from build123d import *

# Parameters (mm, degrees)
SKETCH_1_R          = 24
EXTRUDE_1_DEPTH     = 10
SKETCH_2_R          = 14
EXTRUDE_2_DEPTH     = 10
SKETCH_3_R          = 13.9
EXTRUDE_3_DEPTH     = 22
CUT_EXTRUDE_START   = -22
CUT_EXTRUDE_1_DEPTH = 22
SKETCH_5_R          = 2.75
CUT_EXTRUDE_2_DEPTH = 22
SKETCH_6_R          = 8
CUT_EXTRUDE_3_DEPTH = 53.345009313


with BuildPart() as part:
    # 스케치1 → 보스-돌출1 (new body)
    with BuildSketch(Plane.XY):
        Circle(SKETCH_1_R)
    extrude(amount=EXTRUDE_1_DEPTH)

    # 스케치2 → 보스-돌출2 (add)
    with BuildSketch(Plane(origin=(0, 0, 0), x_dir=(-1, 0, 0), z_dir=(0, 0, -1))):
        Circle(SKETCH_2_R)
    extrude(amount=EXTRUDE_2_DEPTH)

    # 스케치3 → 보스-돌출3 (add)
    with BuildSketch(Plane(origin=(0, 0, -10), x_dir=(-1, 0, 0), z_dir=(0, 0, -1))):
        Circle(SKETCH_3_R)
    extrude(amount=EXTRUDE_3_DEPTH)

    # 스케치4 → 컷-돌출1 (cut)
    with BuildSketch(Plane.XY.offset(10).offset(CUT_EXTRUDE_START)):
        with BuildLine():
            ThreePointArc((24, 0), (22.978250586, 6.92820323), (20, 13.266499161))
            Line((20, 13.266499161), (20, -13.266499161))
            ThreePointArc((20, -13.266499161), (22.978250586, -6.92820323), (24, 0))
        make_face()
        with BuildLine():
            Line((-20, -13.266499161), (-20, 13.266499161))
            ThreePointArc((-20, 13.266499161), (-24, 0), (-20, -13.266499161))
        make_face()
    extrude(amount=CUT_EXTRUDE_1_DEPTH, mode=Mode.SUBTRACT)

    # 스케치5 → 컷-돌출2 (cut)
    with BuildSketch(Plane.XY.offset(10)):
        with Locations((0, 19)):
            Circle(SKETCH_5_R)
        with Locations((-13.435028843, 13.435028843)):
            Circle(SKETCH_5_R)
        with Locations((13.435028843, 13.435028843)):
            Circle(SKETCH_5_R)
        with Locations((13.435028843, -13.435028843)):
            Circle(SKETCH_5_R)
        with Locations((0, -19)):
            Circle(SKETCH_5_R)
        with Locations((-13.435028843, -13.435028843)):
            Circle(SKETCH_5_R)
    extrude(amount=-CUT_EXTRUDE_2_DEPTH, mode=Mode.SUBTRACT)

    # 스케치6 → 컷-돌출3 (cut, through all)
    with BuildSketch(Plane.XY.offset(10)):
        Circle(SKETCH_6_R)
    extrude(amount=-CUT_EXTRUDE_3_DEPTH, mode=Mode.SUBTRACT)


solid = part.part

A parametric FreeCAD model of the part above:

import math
import FreeCAD as App
import Part
import Sketcher
from FreeCAD import Vector

doc = App.newDocument("Part")
params = doc.addObject("Spreadsheet::Sheet", "Params")
for row, (alias, value) in enumerate([
    ("sketch1_diameter", "48 mm"),
    ("pad1_length", "10 mm"),
    ("sketch2_diameter", "28 mm"),
    ("pad2_length", "10 mm"),
    ("sketch3_diameter", "27.8 mm"),
    ("pad3_length", "22 mm"),
    ("sketch4_radius", "24 mm"),
    ("pocket1_length", "22 mm"),
    ("sketch5_diameter", "5.5 mm"),
    ("pocket2_length", "22 mm"),
    ("sketch6_diameter", "16 mm"),
], start=1):
    params.set(f"A{row}", alias)
    params.set(f"B{row}", "=" + value)
    params.setAlias(f"B{row}", alias)

body = doc.addObject("PartDesign::Body", "Body")

# Sketch on XY plane
sketch1 = body.newObject("Sketcher::SketchObject", "Sketch")
sketch1.AttachmentSupport = (doc.getObject("XY_Plane"), [""])
sketch1.MapMode = "FlatFace"
sketch1.addGeometry(Part.Circle(Vector(0, 0, 0), Vector(0, 0, 1), 24), False)
sketch1.addConstraint(Sketcher.Constraint("Coincident", 0, 3, -1, 1))
sketch1.addConstraint(Sketcher.Constraint("Diameter", 0, 48.0))
sketch1.setExpression("Constraints[1]", "Params.sketch1_diameter")
pad1 = body.newObject("PartDesign::Pad", "Pad")
pad1.Profile = sketch1
pad1.setExpression("Length", "Params.pad1_length")

# Sketch on XY plane
sketch2 = body.newObject("Sketcher::SketchObject", "Sketch001")
sketch2.AttachmentSupport = (doc.getObject("XY_Plane"), [""])
sketch2.MapMode = "FlatFace"
sketch2.addGeometry(Part.Circle(Vector(0, 0, 0), Vector(0, 0, 1), 14), False)
sketch2.addConstraint(Sketcher.Constraint("Coincident", 0, 3, -1, 1))
sketch2.addConstraint(Sketcher.Constraint("Diameter", 0, 28.0))
sketch2.setExpression("Constraints[1]", "Params.sketch2_diameter")
pad2 = body.newObject("PartDesign::Pad", "Pad001")
pad2.Profile = sketch2
pad2.setExpression("Length", "Params.pad2_length")
pad2.Reversed = True

# Sketch on XY plane
sketch3 = body.newObject("Sketcher::SketchObject", "Sketch002")
sketch3.AttachmentSupport = (doc.getObject("XY_Plane"), [""])
sketch3.MapMode = "FlatFace"
sketch3.AttachmentOffset = App.Placement(Vector(0, 0, -10), App.Rotation())
sketch3.addGeometry(Part.Circle(Vector(0, 0, 0), Vector(0, 0, 1), 14), False)
sketch3.addConstraint(Sketcher.Constraint("Coincident", 0, 3, -1, 1))
sketch3.addConstraint(Sketcher.Constraint("Diameter", 0, 27.8))
sketch3.setExpression("Constraints[1]", "Params.sketch3_diameter")
pad3 = body.newObject("PartDesign::Pad", "Pad002")
pad3.Profile = sketch3
pad3.setExpression("Length", "Params.pad3_length")
pad3.Reversed = True

# Sketch on XY plane
sketch4 = body.newObject("Sketcher::SketchObject", "Sketch003")
sketch4.AttachmentSupport = (doc.getObject("XY_Plane"), [""])
sketch4.MapMode = "FlatFace"
sketch4.AttachmentOffset = App.Placement(Vector(0, 0, -12), App.Rotation())
sketch4.addGeometry(Part.ArcOfCircle(Part.Circle(Vector(0, 0, 0), Vector(0, 0, 1), 24), math.radians(0), math.radians(34)), False)
sketch4.addGeometry(Part.LineSegment(Vector(20, 13, 0), Vector(20, -13, 0)), False)
sketch4.addGeometry(Part.ArcOfCircle(Part.Circle(Vector(0, 0, 0), Vector(0, 0, 1), 24), math.radians(-34), math.radians(0)), False)
sketch4.addGeometry(Part.LineSegment(Vector(-20, -13, 0), Vector(-20, 13, 0)), False)
sketch4.addGeometry(Part.ArcOfCircle(Part.Circle(Vector(0, 0, 0), Vector(0, 0, 1), 24), math.radians(146), math.radians(214)), False)
sketch4.addConstraint(Sketcher.Constraint("Coincident", 0, 2, 1, 1))
sketch4.addConstraint(Sketcher.Constraint("Coincident", 1, 2, 2, 1))
sketch4.addConstraint(Sketcher.Constraint("Tangent", 2, 2, 0, 1))
sketch4.addConstraint(Sketcher.Constraint("Coincident", 3, 1, 4, 2))
sketch4.addConstraint(Sketcher.Constraint("Coincident", 4, 1, 3, 2))
sketch4.addConstraint(Sketcher.Constraint("Vertical", 1))
sketch4.addConstraint(Sketcher.Constraint("Vertical", 3))
sketch4.addConstraint(Sketcher.Constraint("Coincident", 0, 3, -1, 1))
sketch4.addConstraint(Sketcher.Constraint("Coincident", 4, 3, -1, 1))
sketch4.addConstraint(Sketcher.Constraint("Equal", 0, 2))
sketch4.addConstraint(Sketcher.Constraint("Equal", 2, 4))
sketch4.addConstraint(Sketcher.Constraint("PointOnObject", 2, 2, -1))
sketch4.addConstraint(Sketcher.Constraint("Horizontal", 1, 2, 3, 1))
sketch4.addConstraint(Sketcher.Constraint("Radius", 0, 24.0))
sketch4.addConstraint(Sketcher.Constraint("DistanceX", -1, 1, 0, 2, 20.0))
sketch4.setExpression("Constraints[13]", "Params.sketch4_radius")
pocket1 = body.newObject("PartDesign::Pocket", "Pocket")
pocket1.Profile = sketch4
pocket1.setExpression("Length", "Params.pocket1_length")
pocket1.Reversed = True

# Sketch on XY plane
sketch5 = body.newObject("Sketcher::SketchObject", "Sketch004")
sketch5.AttachmentSupport = (doc.getObject("XY_Plane"), [""])
sketch5.MapMode = "FlatFace"
sketch5.AttachmentOffset = App.Placement(Vector(0, 0, 10), App.Rotation())
sketch5.addGeometry(Part.Circle(Vector(0, 19, 0), Vector(0, 0, 1), 2.8), False)
sketch5.addGeometry(Part.Circle(Vector(-13.4, 13.4, 0), Vector(0, 0, 1), 2.8), False)
sketch5.addGeometry(Part.Circle(Vector(13.4, 13.4, 0), Vector(0, 0, 1), 2.8), False)
sketch5.addGeometry(Part.Circle(Vector(13.4, -13.4, 0), Vector(0, 0, 1), 2.8), False)
sketch5.addGeometry(Part.Circle(Vector(0, -19, 0), Vector(0, 0, 1), 2.8), False)
sketch5.addGeometry(Part.Circle(Vector(-13.4, -13.4, 0), Vector(0, 0, 1), 2.8), False)
sketch5.addConstraint(Sketcher.Constraint("Equal", 0, 1))
sketch5.addConstraint(Sketcher.Constraint("Equal", 1, 2))
sketch5.addConstraint(Sketcher.Constraint("Equal", 2, 3))
sketch5.addConstraint(Sketcher.Constraint("Equal", 3, 4))
sketch5.addConstraint(Sketcher.Constraint("Equal", 4, 5))
sketch5.addConstraint(Sketcher.Constraint("Symmetric", 1, 3, 3, 3, -1, 1))
sketch5.addConstraint(Sketcher.Constraint("Symmetric", 0, 3, 4, 3, -1, 1))
sketch5.addConstraint(Sketcher.Constraint("Symmetric", 2, 3, 5, 3, -1, 1))
sketch5.addConstraint(Sketcher.Constraint("Symmetric", 1, 3, 2, 3, -2))
sketch5.addConstraint(Sketcher.Constraint("PointOnObject", 0, 3, -2))
sketch5.addConstraint(Sketcher.Constraint("Diameter", 0, 5.5))
sketch5.addConstraint(Sketcher.Constraint("DistanceY", -1, 1, 0, 3, 19.0))
sketch5.addConstraint(Sketcher.Constraint("DistanceX", 1, 3, -1, 1, 13.435029))
sketch5.addConstraint(Sketcher.Constraint("DistanceY", -1, 1, 1, 3, 13.435029))
sketch5.setExpression("Constraints[10]", "Params.sketch5_diameter")
pocket2 = body.newObject("PartDesign::Pocket", "Pocket001")
pocket2.Profile = sketch5
pocket2.setExpression("Length", "Params.pocket2_length")

# Sketch on XY plane
sketch6 = body.newObject("Sketcher::SketchObject", "Sketch005")
sketch6.AttachmentSupport = (doc.getObject("XY_Plane"), [""])
sketch6.MapMode = "FlatFace"
sketch6.AttachmentOffset = App.Placement(Vector(0, 0, 10), App.Rotation())
sketch6.addGeometry(Part.Circle(Vector(0, 0, 0), Vector(0, 0, 1), 8), False)
sketch6.addConstraint(Sketcher.Constraint("Coincident", 0, 3, -1, 1))
sketch6.addConstraint(Sketcher.Constraint("Diameter", 0, 16.0))
sketch6.setExpression("Constraints[1]", "Params.sketch6_diameter")
pocket3 = body.newObject("PartDesign::Pocket", "Pocket002")
pocket3.Profile = sketch6
pocket3.Type = "ThroughAll"

doc.recompute()
